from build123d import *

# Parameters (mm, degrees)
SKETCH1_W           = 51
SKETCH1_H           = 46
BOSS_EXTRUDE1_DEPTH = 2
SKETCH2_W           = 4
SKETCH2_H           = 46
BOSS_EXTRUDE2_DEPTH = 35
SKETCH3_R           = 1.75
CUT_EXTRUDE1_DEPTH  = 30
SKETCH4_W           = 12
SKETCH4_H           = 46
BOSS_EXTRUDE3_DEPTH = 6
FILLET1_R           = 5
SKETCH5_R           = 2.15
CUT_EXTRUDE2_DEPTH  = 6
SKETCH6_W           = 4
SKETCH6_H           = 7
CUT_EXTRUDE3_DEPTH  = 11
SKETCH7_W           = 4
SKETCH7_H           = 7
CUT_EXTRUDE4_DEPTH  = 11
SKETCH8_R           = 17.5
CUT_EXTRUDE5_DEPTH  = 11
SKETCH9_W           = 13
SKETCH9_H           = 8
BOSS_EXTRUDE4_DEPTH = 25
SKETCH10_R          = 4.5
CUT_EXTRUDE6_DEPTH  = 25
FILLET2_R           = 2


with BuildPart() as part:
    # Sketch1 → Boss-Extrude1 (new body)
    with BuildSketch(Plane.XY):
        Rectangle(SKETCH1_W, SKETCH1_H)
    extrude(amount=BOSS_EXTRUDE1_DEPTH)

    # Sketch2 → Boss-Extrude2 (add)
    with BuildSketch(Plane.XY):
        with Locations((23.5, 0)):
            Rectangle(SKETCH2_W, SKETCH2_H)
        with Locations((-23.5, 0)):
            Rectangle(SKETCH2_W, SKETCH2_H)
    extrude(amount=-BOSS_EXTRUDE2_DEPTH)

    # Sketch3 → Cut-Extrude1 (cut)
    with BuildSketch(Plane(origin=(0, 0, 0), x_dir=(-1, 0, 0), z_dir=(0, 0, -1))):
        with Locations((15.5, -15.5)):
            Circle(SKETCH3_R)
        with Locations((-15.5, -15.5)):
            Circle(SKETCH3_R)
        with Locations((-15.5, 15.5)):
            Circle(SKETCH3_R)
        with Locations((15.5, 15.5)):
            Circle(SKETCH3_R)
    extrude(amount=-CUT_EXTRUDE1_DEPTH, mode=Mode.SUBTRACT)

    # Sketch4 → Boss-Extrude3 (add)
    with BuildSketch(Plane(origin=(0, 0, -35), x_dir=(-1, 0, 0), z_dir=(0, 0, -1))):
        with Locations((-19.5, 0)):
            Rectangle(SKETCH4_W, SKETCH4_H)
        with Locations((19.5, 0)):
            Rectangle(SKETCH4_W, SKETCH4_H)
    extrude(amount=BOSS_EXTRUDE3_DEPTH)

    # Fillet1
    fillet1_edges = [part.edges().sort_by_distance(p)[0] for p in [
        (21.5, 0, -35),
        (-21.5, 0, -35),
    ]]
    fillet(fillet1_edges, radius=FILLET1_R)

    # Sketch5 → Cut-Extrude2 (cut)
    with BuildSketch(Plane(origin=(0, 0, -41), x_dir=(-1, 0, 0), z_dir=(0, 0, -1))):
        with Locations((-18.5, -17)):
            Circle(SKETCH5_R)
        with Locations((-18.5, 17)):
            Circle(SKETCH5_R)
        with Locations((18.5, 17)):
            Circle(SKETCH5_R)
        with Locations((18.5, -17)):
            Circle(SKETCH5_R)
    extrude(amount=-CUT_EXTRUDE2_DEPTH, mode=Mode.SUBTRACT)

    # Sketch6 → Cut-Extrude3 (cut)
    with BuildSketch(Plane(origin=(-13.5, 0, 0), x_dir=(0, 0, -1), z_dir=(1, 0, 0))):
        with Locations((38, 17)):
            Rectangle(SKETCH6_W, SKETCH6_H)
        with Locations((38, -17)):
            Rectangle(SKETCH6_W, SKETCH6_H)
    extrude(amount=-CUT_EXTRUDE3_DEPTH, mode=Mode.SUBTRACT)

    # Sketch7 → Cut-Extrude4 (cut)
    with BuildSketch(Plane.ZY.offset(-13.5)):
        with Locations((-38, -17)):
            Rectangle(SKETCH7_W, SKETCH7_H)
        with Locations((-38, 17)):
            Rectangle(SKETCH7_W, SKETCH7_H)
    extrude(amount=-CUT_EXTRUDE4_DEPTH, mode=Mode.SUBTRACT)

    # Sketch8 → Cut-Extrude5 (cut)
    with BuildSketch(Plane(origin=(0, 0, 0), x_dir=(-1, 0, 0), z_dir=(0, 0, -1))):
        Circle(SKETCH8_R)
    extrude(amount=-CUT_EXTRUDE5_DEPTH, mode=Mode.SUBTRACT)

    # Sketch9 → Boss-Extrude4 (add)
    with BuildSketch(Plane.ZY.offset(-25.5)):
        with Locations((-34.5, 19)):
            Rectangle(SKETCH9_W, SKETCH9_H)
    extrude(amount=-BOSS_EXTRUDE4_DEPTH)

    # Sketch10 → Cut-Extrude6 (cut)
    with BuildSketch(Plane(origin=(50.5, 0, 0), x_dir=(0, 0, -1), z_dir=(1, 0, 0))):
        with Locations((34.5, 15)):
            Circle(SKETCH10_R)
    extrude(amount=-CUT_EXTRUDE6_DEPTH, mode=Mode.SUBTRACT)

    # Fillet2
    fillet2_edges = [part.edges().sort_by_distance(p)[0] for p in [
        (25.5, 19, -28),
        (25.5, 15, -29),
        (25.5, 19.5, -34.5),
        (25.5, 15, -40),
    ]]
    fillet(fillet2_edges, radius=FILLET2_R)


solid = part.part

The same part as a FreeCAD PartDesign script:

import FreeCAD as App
import Part
import Sketcher

V = App.Vector


def edges_at(feature, points):
    """Names of the edges that pass closest to the given points."""
    edges = feature.Shape.Edges
    near = lambda p: min(range(len(edges)), key=lambda i: edges[i].distToShape(Part.Vertex(*p))[0])
    return sorted({f"Edge{near(p) + 1}" for p in points})

doc = App.newDocument("Part")
params = doc.addObject("Spreadsheet::Sheet", "Params")
for row, (alias, value) in enumerate([
    ("sketch1_width", "51 mm"),
    ("sketch1_height", "46 mm"),
    ("pad1_length", "2 mm"),
    ("sketch2_width", "4 mm"),
    ("sketch2_height", "46 mm"),
    ("pad2_length", "35 mm"),
    ("sketch3_diameter", "3.5 mm"),
    ("pocket1_length", "30 mm"),
    ("sketch4_width", "12 mm"),
    ("sketch4_height", "46 mm"),
    ("pad3_length", "6 mm"),
    ("fillet_radius", "5 mm"),
    ("sketch5_diameter", "4.3 mm"),
    ("pocket2_length", "6 mm"),
    ("sketch6_width", "7 mm"),
    ("sketch6_height", "4 mm"),
    ("pocket3_length", "11 mm"),
    ("sketch7_width", "7 mm"),
    ("sketch7_height", "4 mm"),
    ("pocket4_length", "11 mm"),
    ("sketch8_diameter", "35 mm"),
    ("pocket5_length", "11 mm"),
    ("sketch9_width", "8 mm"),
    ("sketch9_height", "13 mm"),
    ("pad4_length", "25 mm"),
    ("sketch10_diameter", "9 mm"),
    ("pocket6_length", "25 mm"),
    ("fillet2_radius", "2 mm"),
], start=1):
    params.set(f"A{row}", alias)
    params.set(f"B{row}", "=" + value)
    params.setAlias(f"B{row}", alias)

body = doc.addObject("PartDesign::Body", "Body")

# Sketch on XY plane
sketch1 = body.newObject("Sketcher::SketchObject", "Sketch")
sketch1.AttachmentSupport = (doc.getObject("XY_Plane"), [""])
sketch1.MapMode = "FlatFace"
sketch1.addGeometry([
    Part.LineSegment(V(-26, 23, 0), V(-26, -23, 0)),
    Part.LineSegment(V(-26, -23, 0), V(26, -23, 0)),
    Part.LineSegment(V(26, -23, 0), V(26, 23, 0)),
    Part.LineSegment(V(26, 23, 0), V(-26, 23, 0)),
], False)
sketch1.addConstraint([
    Sketcher.Constraint("Coincident", 0, 2, 1, 1),
    Sketcher.Constraint("Coincident", 1, 2, 2, 1),
    Sketcher.Constraint("Coincident", 2, 2, 3, 1),
    Sketcher.Constraint("Coincident", 3, 2, 0, 1),
    Sketcher.Constraint("Vertical", 0),
    Sketcher.Constraint("Horizontal", 1),
    Sketcher.Constraint("Vertical", 2),
    Sketcher.Constraint("Horizontal", 3),
    Sketcher.Constraint("Symmetric", 0, 2, 2, 2, -1, 1),
    Sketcher.Constraint("DistanceX", 1, 1, 1, 2, 51.0),
    Sketcher.Constraint("DistanceY", 0, 2, 0, 1, 46.0),
])
sketch1.setExpression("Constraints[9]", "Params.sketch1_width")
sketch1.setExpression("Constraints[10]", "Params.sketch1_height")
pad1 = body.newObject("PartDesign::Pad", "Pad")
pad1.Profile = sketch1
pad1.setExpression("Length", "Params.pad1_length")

# Sketch on XY plane
sketch2 = body.newObject("Sketcher::SketchObject", "Sketch001")
sketch2.AttachmentSupport = (doc.getObject("XY_Plane"), [""])
sketch2.MapMode = "FlatFace"
sketch2.addGeometry([
    Part.LineSegment(V(21.5, 23, 0), V(21.5, -23, 0)),  # 0
    Part.LineSegment(V(21.5, -23, 0), V(25.5, -23, 0)),  # 1
    Part.LineSegment(V(25.5, -23, 0), V(25.5, 23, 0)),  # 2
    Part.LineSegment(V(25.5, 23, 0), V(21.5, 23, 0)),  # 3
    Part.LineSegment(V(-25.5, 23, 0), V(-25.5, -23, 0)),  # 4
    Part.LineSegment(V(-25.5, -23, 0), V(-21.5, -23, 0)),  # 5
    Part.LineSegment(V(-21.5, -23, 0), V(-21.5, 23, 0)),  # 6
    Part.LineSegment(V(-21.5, 23, 0), V(-25.5, 23, 0)),  # 7
], False)
sketch2.addConstraint([
    Sketcher.Constraint("Coincident", 0, 2, 1, 1),
    Sketcher.Constraint("Coincident", 1, 2, 2, 1),
    Sketcher.Constraint("Coincident", 2, 2, 3, 1),
    Sketcher.Constraint("Coincident", 3, 2, 0, 1),
    Sketcher.Constraint("Coincident", 4, 2, 5, 1),
    Sketcher.Constraint("Coincident", 5, 2, 6, 1),
    Sketcher.Constraint("Coincident", 6, 2, 7, 1),
    Sketcher.Constraint("Coincident", 7, 2, 4, 1),
    Sketcher.Constraint("Vertical", 0),
    Sketcher.Constraint("Horizontal", 1),
    Sketcher.Constraint("Vertical", 2),
    Sketcher.Constraint("Horizontal", 3),
    Sketcher.Constraint("Vertical", 4),
    Sketcher.Constraint("Horizontal", 5),
    Sketcher.Constraint("Vertical", 6),
    Sketcher.Constraint("Horizontal", 7),
    Sketcher.Constraint("Symmetric", 2, 2, 4, 2, -1, 1),
    Sketcher.Constraint("Symmetric", 0, 2, 6, 2, -1, 1),
    Sketcher.Constraint("Horizontal", 1, 2, 4, 2),
    Sketcher.Constraint("DistanceX", 1, 1, 1, 2, 4.0),
    Sketcher.Constraint("DistanceY", 0, 2, 0, 1, 46.0),
    Sketcher.Constraint("DistanceX", 4, 2, 0, 2, 47.0),
])
sketch2.setExpression("Constraints[19]", "Params.sketch2_width")
sketch2.setExpression("Constraints[20]", "Params.sketch2_height")
pad2 = body.newObject("PartDesign::Pad", "Pad001")
pad2.Profile = sketch2
pad2.setExpression("Length", "Params.pad2_length")
pad2.Reversed = True

# Sketch on XY plane
sketch3 = body.newObject("Sketcher::SketchObject", "Sketch002")
sketch3.AttachmentSupport = (doc.getObject("XY_Plane"), [""])
sketch3.MapMode = "FlatFace"
sketch3.addGeometry([
    Part.Circle(V(-15.5, -15.5, 0), V(0, 0, 1), 1.8),
    Part.Circle(V(15.5, -15.5, 0), V(0, 0, 1), 1.8),
    Part.Circle(V(15.5, 15.5, 0), V(0, 0, 1), 1.8),
    Part.Circle(V(-15.5, 15.5, 0), V(0, 0, 1), 1.8),
], False)
sketch3.addConstraint([
    Sketcher.Constraint("Equal", 0, 1),
    Sketcher.Constraint("Equal", 1, 2),
    Sketcher.Constraint("Equal", 2, 3),
    Sketcher.Constraint("Symmetric", 0, 3, 2, 3, -1, 1),
    Sketcher.Constraint("Symmetric", 1, 3, 3, 3, -1, 1),
    Sketcher.Constraint("Symmetric", 0, 3, 1, 3, -2),
    Sketcher.Constraint("Diameter", 0, 3.5),
    Sketcher.Constraint("DistanceX", 0, 3, 1, 3, 31.0),
    Sketcher.Constraint("DistanceY", 1, 3, 2, 3, 31.0),
])
sketch3.setExpression("Constraints[6]", "Params.sketch3_diameter")
pocket1 = body.newObject("PartDesign::Pocket", "Pocket")
pocket1.Profile = sketch3
pocket1.setExpression("Length", "Params.pocket1_length")
pocket1.Reversed = True

# Sketch on XY plane
sketch4 = body.newObject("Sketcher::SketchObject", "Sketch003")
sketch4.AttachmentSupport = (doc.getObject("XY_Plane"), [""])
sketch4.MapMode = "FlatFace"
sketch4.AttachmentOffset = App.Placement(V(0, 0, -35), App.Rotation())
sketch4.addGeometry([
    Part.LineSegment(V(26, 23, 0), V(26, -23, 0)),  # 0
    Part.LineSegment(V(26, -23, 0), V(14, -23, 0)),  # 1
    Part.LineSegment(V(14, -23, 0), V(14, 23, 0)),  # 2
    Part.LineSegment(V(14, 23, 0), V(26, 23, 0)),  # 3
    Part.LineSegment(V(-14, 23, 0), V(-14, -23, 0)),  # 4
    Part.LineSegment(V(-14, -23, 0), V(-26, -23, 0)),  # 5
    Part.LineSegment(V(-26, -23, 0), V(-26, 23, 0)),  # 6
    Part.LineSegment(V(-26, 23, 0), V(-14, 23, 0)),  # 7
], False)
sketch4.addConstraint([
    Sketcher.Constraint("Coincident", 0, 2, 1, 1),
    Sketcher.Constraint("Coincident", 1, 2, 2, 1),
    Sketcher.Constraint("Coincident", 2, 2, 3, 1),
    Sketcher.Constraint("Coincident", 3, 2, 0, 1),
    Sketcher.Constraint("Coincident", 4, 2, 5, 1),
    Sketcher.Constraint("Coincident", 5, 2, 6, 1),
    Sketcher.Constraint("Coincident", 6, 2, 7, 1),
    Sketcher.Constraint("Coincident", 7, 2, 4, 1),
    Sketcher.Constraint("Vertical", 0),
    Sketcher.Constraint("Horizontal", 1),
    Sketcher.Constraint("Vertical", 2),
    Sketcher.Constraint("Horizontal", 3),
    Sketcher.Constraint("Vertical", 4),
    Sketcher.Constraint("Horizontal", 5),
    Sketcher.Constraint("Vertical", 6),
    Sketcher.Constraint("Horizontal", 7),
    Sketcher.Constraint("Symmetric", 2, 2, 4, 2, -1, 1),
    Sketcher.Constraint("Symmetric", 0, 2, 6, 2, -1, 1),
    Sketcher.Constraint("Horizontal", 1, 2, 4, 2),
    Sketcher.Constraint("DistanceX", 1, 2, 1, 1, 12.0),
    Sketcher.Constraint("DistanceY", 0, 2, 0, 1, 46.0),
    Sketcher.Constraint("DistanceX", 4, 2, 1, 2, 27.0),
])
sketch4.setExpression("Constraints[19]", "Params.sketch4_width")
sketch4.setExpression("Constraints[20]", "Params.sketch4_height")
pad3 = body.newObject("PartDesign::Pad", "Pad002")
pad3.Profile = sketch4
pad3.setExpression("Length", "Params.pad3_length")
pad3.Reversed = True
doc.recompute()

fillet = body.newObject("PartDesign::Fillet", "Fillet")
fillet.Base = (pad3, edges_at(pad3, [(21.5, 0, -35), (-21.5, 0, -35)]))
fillet.setExpression("Radius", "Params.fillet_radius")

# Sketch on XY plane
sketch5 = body.newObject("Sketcher::SketchObject", "Sketch004")
sketch5.AttachmentSupport = (doc.getObject("XY_Plane"), [""])
sketch5.MapMode = "FlatFace"
sketch5.AttachmentOffset = App.Placement(V(0, 0, -41), App.Rotation())
sketch5.addGeometry([
    Part.Circle(V(18.5, -17, 0), V(0, 0, 1), 2.1),
    Part.Circle(V(18.5, 17, 0), V(0, 0, 1), 2.1),
    Part.Circle(V(-18.5, 17, 0), V(0, 0, 1), 2.1),
    Part.Circle(V(-18.5, -17, 0), V(0, 0, 1), 2.1),
], False)
sketch5.addConstraint([
    Sketcher.Constraint("Equal", 0, 1),
    Sketcher.Constraint("Equal", 1, 2),
    Sketcher.Constraint("Equal", 2, 3),
    Sketcher.Constraint("Symmetric", 0, 3, 2, 3, -1, 1),
    Sketcher.Constraint("Symmetric", 1, 3, 3, 3, -1, 1),
    Sketcher.Constraint("Symmetric", 1, 3, 2, 3, -2),
    Sketcher.Constraint("Diameter", 0, 4.3),
    Sketcher.Constraint("DistanceY", 0, 3, -1, 1, 17.0),
    Sketcher.Constraint("DistanceX", 2, 3, 1, 3, 37.0),
])
sketch5.setExpression("Constraints[6]", "Params.sketch5_diameter")
pocket2 = body.newObject("PartDesign::Pocket", "Pocket001")
pocket2.Profile = sketch5
pocket2.setExpression("Length", "Params.pocket2_length")
pocket2.Reversed = True

# Sketch on YZ plane
sketch6 = body.newObject("Sketcher::SketchObject", "Sketch005")
sketch6.AttachmentSupport = (doc.getObject("YZ_Plane"), [""])
sketch6.MapMode = "FlatFace"
sketch6.AttachmentOffset = App.Placement(V(0, 0, -13.5), App.Rotation())
sketch6.addGeometry([
    Part.LineSegment(V(20.5, -36, 0), V(13.5, -36, 0)),  # 0
    Part.LineSegment(V(13.5, -36, 0), V(13.5, -40, 0)),  # 1
    Part.LineSegment(V(13.5, -40, 0), V(20.5, -40, 0)),  # 2
    Part.LineSegment(V(20.5, -40, 0), V(20.5, -36, 0)),  # 3
    Part.LineSegment(V(-13.5, -36, 0), V(-20.5, -36, 0)),  # 4
    Part.LineSegment(V(-20.5, -36, 0), V(-20.5, -40, 0)),  # 5
    Part.LineSegment(V(-20.5, -40, 0), V(-13.5, -40, 0)),  # 6
    Part.LineSegment(V(-13.5, -40, 0), V(-13.5, -36, 0)),  # 7
], False)
sketch6.addConstraint([
    Sketcher.Constraint("Coincident", 0, 2, 1, 1),
    Sketcher.Constraint("Coincident", 1, 2, 2, 1),
    Sketcher.Constraint("Coincident", 2, 2, 3, 1),
    Sketcher.Constraint("Coincident", 3, 2, 0, 1),
    Sketcher.Constraint("Coincident", 4, 2, 5, 1),
    Sketcher.Constraint("Coincident", 5, 2, 6, 1),
    Sketcher.Constraint("Coincident", 6, 2, 7, 1),
    Sketcher.Constraint("Coincident", 7, 2, 4, 1),
    Sketcher.Constraint("Horizontal", 0),
    Sketcher.Constraint("Vertical", 1),
    Sketcher.Constraint("Horizontal", 2),
    Sketcher.Constraint("Vertical", 3),
    Sketcher.Constraint("Horizontal", 4),
    Sketcher.Constraint("Vertical", 5),
    Sketcher.Constraint("Horizontal", 6),
    Sketcher.Constraint("Vertical", 7),
    Sketcher.Constraint("Symmetric", 3, 2, 4, 2, -2),
    Sketcher.Constraint("Symmetric", 1, 2, 6, 2, -2),
    Sketcher.Constraint("DistanceX", 0, 2, 0, 1, 7.0),
    Sketcher.Constraint("DistanceY", 1, 2, 1, 1, 4.0),
    Sketcher.Constraint("DistanceY", 0, 2, -1, 1, 36.0),
    Sketcher.Constraint("DistanceX", 4, 2, 0, 2, 34.0),
])
sketch6.setExpression("Constraints[18]", "Params.sketch6_width")
sketch6.setExpression("Constraints[19]", "Params.sketch6_height")
pocket3 = body.newObject("PartDesign::Pocket", "Pocket002")
pocket3.Profile = sketch6
pocket3.setExpression("Length", "Params.pocket3_length")

# Sketch on YZ plane
sketch7 = body.newObject("Sketcher::SketchObject", "Sketch006")
sketch7.AttachmentSupport = (doc.getObject("YZ_Plane"), [""])
sketch7.MapMode = "FlatFace"
sketch7.AttachmentOffset = App.Placement(V(0, 0, 13.5), App.Rotation())
sketch7.addGeometry([
    Part.LineSegment(V(-13.5, -40, 0), V(-20.5, -40, 0)),  # 0
    Part.LineSegment(V(-20.5, -40, 0), V(-20.5, -36, 0)),  # 1
    Part.LineSegment(V(-20.5, -36, 0), V(-13.5, -36, 0)),  # 2
    Part.LineSegment(V(-13.5, -36, 0), V(-13.5, -40, 0)),  # 3
    Part.LineSegment(V(20.5, -40, 0), V(13.5, -40, 0)),  # 4
    Part.LineSegment(V(13.5, -40, 0), V(13.5, -36, 0)),  # 5
    Part.LineSegment(V(13.5, -36, 0), V(20.5, -36, 0)),  # 6
    Part.LineSegment(V(20.5, -36, 0), V(20.5, -40, 0)),  # 7
], False)
sketch7.addConstraint([
    Sketcher.Constraint("Coincident", 0, 2, 1, 1),
    Sketcher.Constraint("Coincident", 1, 2, 2, 1),
    Sketcher.Constraint("Coincident", 2, 2, 3, 1),
    Sketcher.Constraint("Coincident", 3, 2, 0, 1),
    Sketcher.Constraint("Coincident", 4, 2, 5, 1),
    Sketcher.Constraint("Coincident", 5, 2, 6, 1),
    Sketcher.Constraint("Coincident", 6, 2, 7, 1),
    Sketcher.Constraint("Coincident", 7, 2, 4, 1),
    Sketcher.Constraint("Horizontal", 0),
    Sketcher.Constraint("Vertical", 1),
    Sketcher.Constraint("Horizontal", 2),
    Sketcher.Constraint("Vertical", 3),
    Sketcher.Constraint("Horizontal", 4),
    Sketcher.Constraint("Vertical", 5),
    Sketcher.Constraint("Horizontal", 6),
    Sketcher.Constraint("Vertical", 7),
    Sketcher.Constraint("Symmetric", 3, 2, 4, 2, -2),
    Sketcher.Constraint("Symmetric", 1, 2, 6, 2, -2),
    Sketcher.Constraint("DistanceX", 0, 2, 0, 1, 7.0),
    Sketcher.Constraint("DistanceY", 1, 1, 1, 2, 4.0),
    Sketcher.Constraint("DistanceY", 0, 2, -1, 1, 40.0),
    Sketcher.Constraint("DistanceX", 3, 2, 4, 2, 27.0),
])
sketch7.setExpression("Constraints[18]", "Params.sketch7_width")
sketch7.setExpression("Constraints[19]", "Params.sketch7_height")
pocket4 = body.newObject("PartDesign::Pocket", "Pocket003")
pocket4.Profile = sketch7
pocket4.setExpression("Length", "Params.pocket4_length")
pocket4.Reversed = True

# Sketch on XY plane
sketch8 = body.newObject("Sketcher::SketchObject", "Sketch007")
sketch8.AttachmentSupport = (doc.getObject("XY_Plane"), [""])
sketch8.MapMode = "FlatFace"
sketch8.addGeometry(Part.Circle(V(0, 0, 0), V(0, 0, 1), 18), False)
sketch8.addConstraint([
    Sketcher.Constraint("Coincident", 0, 3, -1, 1),
    Sketcher.Constraint("Diameter", 0, 35.0),
])
sketch8.setExpression("Constraints[1]", "Params.sketch8_diameter")
pocket5 = body.newObject("PartDesign::Pocket", "Pocket004")
pocket5.Profile = sketch8
pocket5.setExpression("Length", "Params.pocket5_length")
pocket5.Reversed = True

# Sketch on YZ plane
sketch9 = body.newObject("Sketcher::SketchObject", "Sketch008")
sketch9.AttachmentSupport = (doc.getObject("YZ_Plane"), [""])
sketch9.MapMode = "FlatFace"
sketch9.AttachmentOffset = App.Placement(V(0, 0, 25.5), App.Rotation())
sketch9.addGeometry([
    Part.LineSegment(V(23, -41, 0), V(15, -41, 0)),
    Part.LineSegment(V(15, -41, 0), V(15, -28, 0)),
    Part.LineSegment(V(15, -28, 0), V(23, -28, 0)),
    Part.LineSegment(V(23, -28, 0), V(23, -41, 0)),
], False)
sketch9.addConstraint([
    Sketcher.Constraint("Coincident", 0, 2, 1, 1),
    Sketcher.Constraint("Coincident", 1, 2, 2, 1),
    Sketcher.Constraint("Coincident", 2, 2, 3, 1),
    Sketcher.Constraint("Coincident", 3, 2, 0, 1),
    Sketcher.Constraint("Horizontal", 0),
    Sketcher.Constraint("Vertical", 1),
    Sketcher.Constraint("Horizontal", 2),
    Sketcher.Constraint("Vertical", 3),
    Sketcher.Constraint("DistanceX", 0, 2, 0, 1, 8.0),
    Sketcher.Constraint("DistanceY", 1, 1, 1, 2, 13.0),
    Sketcher.Constraint("DistanceX", -1, 1, 0, 2, 15.0),
    Sketcher.Constraint("DistanceY", 0, 2, -1, 1, 41.0),
])
sketch9.setExpression("Constraints[8]", "Params.sketch9_width")
sketch9.setExpression("Constraints[9]", "Params.sketch9_height")
pad4 = body.newObject("PartDesign::Pad", "Pad003")
pad4.Profile = sketch9
pad4.setExpression("Length", "Params.pad4_length")

# Sketch on YZ plane
sketch10 = body.newObject("Sketcher::SketchObject", "Sketch009")
sketch10.AttachmentSupport = (doc.getObject("YZ_Plane"), [""])
sketch10.MapMode = "FlatFace"
sketch10.AttachmentOffset = App.Placement(V(0, 0, 50.5), App.Rotation())
sketch10.addGeometry(Part.Circle(V(15, -34.5, 0), V(0, 0, 1), 4.5), False)
sketch10.addConstraint([
    Sketcher.Constraint("Diameter", 0, 9.0),
    Sketcher.Constraint("DistanceX", -1, 1, 0, 3, 15.0),
    Sketcher.Constraint("DistanceY", 0, 3, -1, 1, 34.5),
])
sketch10.setExpression("Constraints[0]", "Params.sketch10_diameter")
pocket6 = body.newObject("PartDesign::Pocket", "Pocket005")
pocket6.Profile = sketch10
pocket6.setExpression("Length", "Params.pocket6_length")
doc.recompute()

fillet2 = body.newObject("PartDesign::Fillet", "Fillet001")
fillet2.Base = (pocket6, edges_at(pocket6, [
    (25.5, 19, -28),
    (25.5, 15, -29),
    (25.5, 19.5, -34.5),
    (25.5, 15, -40),
]))
fillet2.setExpression("Radius", "Params.fillet2_radius")

doc.recompute()
